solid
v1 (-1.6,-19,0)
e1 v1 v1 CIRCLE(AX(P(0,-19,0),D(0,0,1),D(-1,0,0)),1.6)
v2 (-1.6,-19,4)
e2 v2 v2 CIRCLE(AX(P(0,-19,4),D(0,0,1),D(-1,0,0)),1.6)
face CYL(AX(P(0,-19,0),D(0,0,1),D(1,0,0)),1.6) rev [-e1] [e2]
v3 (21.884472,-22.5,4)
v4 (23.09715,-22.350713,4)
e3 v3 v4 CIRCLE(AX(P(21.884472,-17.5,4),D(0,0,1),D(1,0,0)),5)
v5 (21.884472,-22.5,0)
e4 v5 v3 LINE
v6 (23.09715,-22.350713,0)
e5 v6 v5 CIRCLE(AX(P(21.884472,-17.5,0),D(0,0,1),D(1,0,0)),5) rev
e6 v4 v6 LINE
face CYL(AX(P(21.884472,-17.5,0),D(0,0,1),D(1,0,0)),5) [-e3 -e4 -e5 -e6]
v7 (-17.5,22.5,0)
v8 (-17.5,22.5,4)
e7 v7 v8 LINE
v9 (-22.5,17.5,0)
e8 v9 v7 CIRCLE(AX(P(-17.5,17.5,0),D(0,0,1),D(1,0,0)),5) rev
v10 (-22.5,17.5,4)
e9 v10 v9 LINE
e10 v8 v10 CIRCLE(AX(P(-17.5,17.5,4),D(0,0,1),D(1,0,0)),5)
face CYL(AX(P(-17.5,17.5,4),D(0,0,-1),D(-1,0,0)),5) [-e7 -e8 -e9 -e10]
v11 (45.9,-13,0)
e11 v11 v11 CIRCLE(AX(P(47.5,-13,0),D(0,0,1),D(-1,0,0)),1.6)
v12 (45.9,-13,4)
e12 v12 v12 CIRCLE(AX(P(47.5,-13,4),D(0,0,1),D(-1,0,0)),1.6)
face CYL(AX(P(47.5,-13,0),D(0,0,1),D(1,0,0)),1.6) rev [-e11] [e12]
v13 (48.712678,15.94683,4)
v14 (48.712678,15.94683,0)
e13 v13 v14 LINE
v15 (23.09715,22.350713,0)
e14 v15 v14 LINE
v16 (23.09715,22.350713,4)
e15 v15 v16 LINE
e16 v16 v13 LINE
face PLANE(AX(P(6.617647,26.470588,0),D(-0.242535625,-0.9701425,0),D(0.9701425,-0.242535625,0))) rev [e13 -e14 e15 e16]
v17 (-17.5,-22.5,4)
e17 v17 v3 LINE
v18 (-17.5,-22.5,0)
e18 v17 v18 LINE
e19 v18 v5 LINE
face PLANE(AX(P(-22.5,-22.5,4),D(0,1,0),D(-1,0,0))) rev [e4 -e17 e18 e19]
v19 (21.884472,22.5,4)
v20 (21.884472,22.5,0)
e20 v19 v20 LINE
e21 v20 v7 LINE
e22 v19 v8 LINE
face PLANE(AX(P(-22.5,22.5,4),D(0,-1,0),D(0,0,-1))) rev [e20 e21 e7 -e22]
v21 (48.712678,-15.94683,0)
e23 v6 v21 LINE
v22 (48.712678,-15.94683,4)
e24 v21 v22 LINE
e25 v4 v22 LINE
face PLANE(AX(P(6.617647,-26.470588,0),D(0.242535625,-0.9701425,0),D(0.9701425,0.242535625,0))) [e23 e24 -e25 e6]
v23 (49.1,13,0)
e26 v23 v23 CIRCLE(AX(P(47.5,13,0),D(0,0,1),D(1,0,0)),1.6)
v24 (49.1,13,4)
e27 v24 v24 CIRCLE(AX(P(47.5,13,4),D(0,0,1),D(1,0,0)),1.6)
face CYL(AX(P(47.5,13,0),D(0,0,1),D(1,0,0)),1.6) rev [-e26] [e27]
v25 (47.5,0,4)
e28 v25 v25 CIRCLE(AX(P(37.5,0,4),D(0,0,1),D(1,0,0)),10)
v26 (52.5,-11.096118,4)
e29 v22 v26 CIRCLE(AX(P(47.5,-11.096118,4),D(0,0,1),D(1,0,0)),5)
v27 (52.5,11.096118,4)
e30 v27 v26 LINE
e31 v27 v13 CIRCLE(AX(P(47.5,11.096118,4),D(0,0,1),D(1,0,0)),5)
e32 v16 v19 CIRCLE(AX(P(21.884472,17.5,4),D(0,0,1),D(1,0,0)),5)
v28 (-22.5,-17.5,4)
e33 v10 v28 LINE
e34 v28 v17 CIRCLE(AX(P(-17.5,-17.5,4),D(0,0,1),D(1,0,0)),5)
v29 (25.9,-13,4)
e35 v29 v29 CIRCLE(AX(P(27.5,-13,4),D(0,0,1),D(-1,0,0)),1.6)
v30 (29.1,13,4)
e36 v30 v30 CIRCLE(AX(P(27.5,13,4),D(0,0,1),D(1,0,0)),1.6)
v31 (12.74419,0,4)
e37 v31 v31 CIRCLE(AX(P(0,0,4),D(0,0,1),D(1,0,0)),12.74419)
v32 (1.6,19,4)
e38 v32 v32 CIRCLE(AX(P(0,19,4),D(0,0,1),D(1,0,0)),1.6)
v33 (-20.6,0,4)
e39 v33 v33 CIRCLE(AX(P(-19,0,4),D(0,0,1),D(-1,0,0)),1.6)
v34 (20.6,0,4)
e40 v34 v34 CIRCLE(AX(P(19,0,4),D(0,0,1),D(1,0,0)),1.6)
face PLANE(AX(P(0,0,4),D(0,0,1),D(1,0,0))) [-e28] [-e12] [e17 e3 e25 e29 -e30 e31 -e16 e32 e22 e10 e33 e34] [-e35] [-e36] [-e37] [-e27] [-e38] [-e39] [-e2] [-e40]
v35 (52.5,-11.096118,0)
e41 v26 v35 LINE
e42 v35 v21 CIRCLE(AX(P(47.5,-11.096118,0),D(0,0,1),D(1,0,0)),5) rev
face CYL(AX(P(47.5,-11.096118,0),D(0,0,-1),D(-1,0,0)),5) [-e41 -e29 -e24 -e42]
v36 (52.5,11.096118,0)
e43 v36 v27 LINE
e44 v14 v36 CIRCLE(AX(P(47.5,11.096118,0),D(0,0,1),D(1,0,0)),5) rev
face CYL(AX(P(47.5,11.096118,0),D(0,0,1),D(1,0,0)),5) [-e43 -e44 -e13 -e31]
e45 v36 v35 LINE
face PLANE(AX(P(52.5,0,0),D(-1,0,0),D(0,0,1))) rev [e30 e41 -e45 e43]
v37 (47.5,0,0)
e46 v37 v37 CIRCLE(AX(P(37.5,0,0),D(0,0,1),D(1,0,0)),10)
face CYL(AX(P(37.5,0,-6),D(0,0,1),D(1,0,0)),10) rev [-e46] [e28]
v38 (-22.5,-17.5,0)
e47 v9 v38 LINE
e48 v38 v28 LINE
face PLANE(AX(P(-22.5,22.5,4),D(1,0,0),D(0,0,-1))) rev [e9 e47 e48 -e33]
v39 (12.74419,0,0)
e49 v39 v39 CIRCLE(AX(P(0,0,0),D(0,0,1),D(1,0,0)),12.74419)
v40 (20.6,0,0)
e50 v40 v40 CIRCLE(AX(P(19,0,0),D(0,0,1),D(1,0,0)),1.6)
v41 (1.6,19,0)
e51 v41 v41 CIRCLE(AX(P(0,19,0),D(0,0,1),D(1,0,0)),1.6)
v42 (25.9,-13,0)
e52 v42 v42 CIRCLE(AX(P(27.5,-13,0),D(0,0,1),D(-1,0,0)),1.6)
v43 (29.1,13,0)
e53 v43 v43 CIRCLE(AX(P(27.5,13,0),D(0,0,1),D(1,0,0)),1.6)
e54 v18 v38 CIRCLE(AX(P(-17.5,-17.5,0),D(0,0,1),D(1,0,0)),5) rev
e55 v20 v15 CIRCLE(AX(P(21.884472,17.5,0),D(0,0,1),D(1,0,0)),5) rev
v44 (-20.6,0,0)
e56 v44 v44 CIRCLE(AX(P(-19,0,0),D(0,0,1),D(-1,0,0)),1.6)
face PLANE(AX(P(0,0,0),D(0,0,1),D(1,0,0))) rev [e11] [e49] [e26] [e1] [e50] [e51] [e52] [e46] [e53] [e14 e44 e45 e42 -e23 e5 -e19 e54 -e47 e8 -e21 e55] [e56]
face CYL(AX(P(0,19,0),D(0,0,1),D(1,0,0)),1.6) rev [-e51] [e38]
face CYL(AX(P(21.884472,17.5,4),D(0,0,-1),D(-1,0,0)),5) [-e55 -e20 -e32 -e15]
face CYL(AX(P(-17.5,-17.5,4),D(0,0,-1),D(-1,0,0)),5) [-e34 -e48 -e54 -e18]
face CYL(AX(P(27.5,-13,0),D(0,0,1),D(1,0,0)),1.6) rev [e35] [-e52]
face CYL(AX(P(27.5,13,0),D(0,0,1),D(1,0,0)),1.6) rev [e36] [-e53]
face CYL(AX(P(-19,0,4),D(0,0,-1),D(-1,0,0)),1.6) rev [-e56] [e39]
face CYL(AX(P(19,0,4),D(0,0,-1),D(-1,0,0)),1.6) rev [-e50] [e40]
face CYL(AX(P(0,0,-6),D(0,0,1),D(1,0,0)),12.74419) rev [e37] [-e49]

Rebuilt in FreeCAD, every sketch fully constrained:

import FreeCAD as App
import Part
import Sketcher
from FreeCAD import Vector
Q = App.Units.Quantity


def edges_at(feature, points):
    """Names of the edges that pass closest to the given points."""
    edges = feature.Shape.Edges
    near = lambda p: min(range(len(edges)), key=lambda i: edges[i].distToShape(Part.Vertex(*p))[0])
    return sorted({f"Edge{near(p) + 1}" for p in points})

doc = App.newDocument("Part")
body = doc.addObject("PartDesign::Body", "Body")

sketch1 = body.newObject("Sketcher::SketchObject", "Sketch")
sketch1.AttachmentSupport = (doc.getObject("XY_Plane"), [""])
sketch1.MapMode = "FlatFace"
sketch1.addGeometry([
    Part.LineSegment(Vector(-22.5, 22.5, 0), Vector(-22.5, -22.5, 0)),
    Part.LineSegment(Vector(-22.5, -22.5, 0), Vector(22.5, -22.5, 0)),
    Part.LineSegment(Vector(22.5, -22.5, 0), Vector(22.5, 22.5, 0)),
    Part.LineSegment(Vector(22.5, 22.5, 0), Vector(-22.5, 22.5, 0)),
    Part.Circle(Vector(-19, 0, 0), Vector(0, 0, 1), 1.6),
    Part.Circle(Vector(19, 0, 0), Vector(0, 0, 1), 1.6),
], False)
sketch1.addConstraint([
    Sketcher.Constraint("Coincident", 0, 2, 1, 1),
    Sketcher.Constraint("Coincident", 1, 2, 2, 1),
    Sketcher.Constraint("Coincident", 2, 2, 3, 1),
    Sketcher.Constraint("Coincident", 3, 2, 0, 1),
    Sketcher.Constraint("Vertical", 0),
    Sketcher.Constraint("Horizontal", 1),
    Sketcher.Constraint("Vertical", 2),
    Sketcher.Constraint("Horizontal", 3),
    Sketcher.Constraint("Equal", 4, 5),
    Sketcher.Constraint("Symmetric", 4, 3, 5, 3, -1, 1),
    Sketcher.Constraint("Symmetric", 0, 2, 2, 2, -1, 1),
    Sketcher.Constraint("PointOnObject", 4, 3, -1),
    Sketcher.Constraint("Equal", 3, 0),
    Sketcher.Constraint("Diameter", 4, Q("3.2 mm")),
    Sketcher.Constraint("DistanceX", 1, 1, 1, 2, Q("45 mm")),
    Sketcher.Constraint("DistanceX", 4, 3, -1, 1, Q("19 mm")),
])
pad1 = body.newObject("PartDesign::Pad", "Pad")
pad1.Profile = sketch1
pad1.Length = 4

sketch2 = body.newObject("Sketcher::SketchObject", "Sketch001")
sketch2.AttachmentSupport = (doc.getObject("XY_Plane"), [""])
sketch2.MapMode = "FlatFace"
sketch2.AttachmentOffset = App.Placement(Vector(0, 0, 4), App.Rotation())
sketch2.addGeometry([
    Part.LineSegment(Vector(52, 15, 0), Vector(22, 22, 0)),
    Part.LineSegment(Vector(22, 22, 0), Vector(22, -22, 0)),
    Part.LineSegment(Vector(22, -22, 0), Vector(52, -15, 0)),
    Part.LineSegment(Vector(52, -15, 0), Vector(52, 15, 0)),
], False)
sketch2.addConstraint([
    Sketcher.Constraint("Coincident", 0, 2, 1, 1),
    Sketcher.Constraint("Coincident", 1, 2, 2, 1),
    Sketcher.Constraint("Coincident", 2, 2, 3, 1),
    Sketcher.Constraint("Coincident", 3, 2, 0, 1),
    Sketcher.Constraint("Vertical", 1),
    Sketcher.Constraint("Vertical", 3),
    Sketcher.Constraint("Equal", 0, 2),
    Sketcher.Constraint("DistanceY", 1, 2, 1, 1, Q("45 mm")),
    Sketcher.Constraint("DistanceY", 3, 1, 3, 2, Q("30 mm")),
    Sketcher.Constraint("DistanceY", 2, 2, -1, 1, Q("15 mm")),
    Sketcher.Constraint("DistanceX", 1, 2, 2, 2, Q("30 mm")),
    Sketcher.Constraint("DistanceX", -1, 1, 0, 2, Q("22.5 mm")),
])
pad2 = body.newObject("PartDesign::Pad", "Pad001")
pad2.Profile = sketch2
pad2.Length = 4
pad2.Reversed = True

sketch3 = body.newObject("Sketcher::SketchObject", "Sketch002")
sketch3.AttachmentSupport = (doc.getObject("XY_Plane"), [""])
sketch3.MapMode = "FlatFace"
sketch3.AttachmentOffset = App.Placement(Vector(0, 0, 4), App.Rotation())
sketch3.addGeometry([
    Part.Circle(Vector(27.5, 13, 0), Vector(0, 0, 1), 1.6),
    Part.Circle(Vector(47.5, 13, 0), Vector(0, 0, 1), 1.6),
    Part.Circle(Vector(47.5, -13, 0), Vector(0, 0, 1), 1.6),
    Part.Circle(Vector(27.5, -13, 0), Vector(0, 0, 1), 1.6),
], False)
sketch3.addConstraint([
    Sketcher.Constraint("Equal", 0, 1),
    Sketcher.Constraint("Equal", 1, 2),
    Sketcher.Constraint("Equal", 2, 3),
    Sketcher.Constraint("Symmetric", 1, 3, 2, 3, -1),
    Sketcher.Constraint("Symmetric", 0, 3, 3, 3, -1),
    Sketcher.Constraint("Horizontal", 0, 3, 1, 3),
    Sketcher.Constraint("Diameter", 0, Q("3.2 mm")),
    Sketcher.Constraint("DistanceY", -1, 1, 0, 3, Q("13 mm")),
    Sketcher.Constraint("DistanceX", 0, 3, 1, 3, Q("20 mm")),
    Sketcher.Constraint("DistanceX", -1, 1, 0, 3, Q("27.5 mm")),
])
pocket1 = body.newObject("PartDesign::Pocket", "Pocket")
pocket1.Profile = sketch3
pocket1.Length = 4
doc.recompute()

fillet = body.newObject("PartDesign::Fillet", "Fillet")
fillet.Base = (pocket1, edges_at(pocket1, [(52.5, 15, 2), (52.5, -15, 2), (22.5, 22.5, 2)]))
fillet.Radius = 5

sketch4 = body.newObject("Sketcher::SketchObject", "Sketch003")
sketch4.AttachmentSupport = (doc.getObject("XY_Plane"), [""])
sketch4.MapMode = "FlatFace"
sketch4.AttachmentOffset = App.Placement(Vector(0, 0, 4), App.Rotation())
sketch4.addGeometry([
    Part.Circle(Vector(0, 19, 0), Vector(0, 0, 1), 1.6),
    Part.Circle(Vector(0, -19, 0), Vector(0, 0, 1), 1.6),
], False)
sketch4.addConstraint([
    Sketcher.Constraint("Equal", 0, 1),
    Sketcher.Constraint("Symmetric", 0, 3, 1, 3, -1, 1),
    Sketcher.Constraint("PointOnObject", 0, 3, -2),
    Sketcher.Constraint("Diameter", 0, Q("3.2 mm")),
    Sketcher.Constraint("DistanceY", -1, 1, 0, 3, Q("19 mm")),
])
pocket2 = body.newObject("PartDesign::Pocket", "Pocket001")
pocket2.Profile = sketch4
pocket2.Length = 4

sketch5 = body.newObject("Sketcher::SketchObject", "Sketch004")
sketch5.AttachmentSupport = (doc.getObject("XY_Plane"), [""])
sketch5.MapMode = "FlatFace"
sketch5.AttachmentOffset = App.Placement(Vector(0, 0, 4), App.Rotation())
sketch5.addGeometry([
    Part.Circle(Vector(0, 0, 0), Vector(0, 0, 1), 13),
    Part.Circle(Vector(38, 0, 0), Vector(0, 0, 1), 10),
], False)
sketch5.addConstraint([
    Sketcher.Constraint("Coincident", 0, 3, -1, 1),
    Sketcher.Constraint("PointOnObject", 1, 3, -1),
    Sketcher.Constraint("Diameter", 1, Q("20 mm")),
    Sketcher.Constraint("DistanceX", -1, 1, 1, 3, Q("37.5 mm")),
    Sketcher.Constraint("Diameter", 0, Q("25.488379 mm")),
])
pocket3 = body.newObject("PartDesign::Pocket", "Pocket002")
pocket3.Profile = sketch5
pocket3.Length = 10
doc.recompute()

fillet2 = body.newObject("PartDesign::Fillet", "Fillet001")
fillet2.Base = (pocket3, edges_at(pocket3, [(-22.5, -22.5, 2), (-22.5, 22.5, 2)]))
fillet2.Radius = 5
doc.recompute()

fillet3 = body.newObject("PartDesign::Fillet", "Fillet002")
fillet3.Base = (fillet2, edges_at(fillet2, [(22.5, -22.5, 2)]))
fillet3.Radius = 5

doc.recompute()
